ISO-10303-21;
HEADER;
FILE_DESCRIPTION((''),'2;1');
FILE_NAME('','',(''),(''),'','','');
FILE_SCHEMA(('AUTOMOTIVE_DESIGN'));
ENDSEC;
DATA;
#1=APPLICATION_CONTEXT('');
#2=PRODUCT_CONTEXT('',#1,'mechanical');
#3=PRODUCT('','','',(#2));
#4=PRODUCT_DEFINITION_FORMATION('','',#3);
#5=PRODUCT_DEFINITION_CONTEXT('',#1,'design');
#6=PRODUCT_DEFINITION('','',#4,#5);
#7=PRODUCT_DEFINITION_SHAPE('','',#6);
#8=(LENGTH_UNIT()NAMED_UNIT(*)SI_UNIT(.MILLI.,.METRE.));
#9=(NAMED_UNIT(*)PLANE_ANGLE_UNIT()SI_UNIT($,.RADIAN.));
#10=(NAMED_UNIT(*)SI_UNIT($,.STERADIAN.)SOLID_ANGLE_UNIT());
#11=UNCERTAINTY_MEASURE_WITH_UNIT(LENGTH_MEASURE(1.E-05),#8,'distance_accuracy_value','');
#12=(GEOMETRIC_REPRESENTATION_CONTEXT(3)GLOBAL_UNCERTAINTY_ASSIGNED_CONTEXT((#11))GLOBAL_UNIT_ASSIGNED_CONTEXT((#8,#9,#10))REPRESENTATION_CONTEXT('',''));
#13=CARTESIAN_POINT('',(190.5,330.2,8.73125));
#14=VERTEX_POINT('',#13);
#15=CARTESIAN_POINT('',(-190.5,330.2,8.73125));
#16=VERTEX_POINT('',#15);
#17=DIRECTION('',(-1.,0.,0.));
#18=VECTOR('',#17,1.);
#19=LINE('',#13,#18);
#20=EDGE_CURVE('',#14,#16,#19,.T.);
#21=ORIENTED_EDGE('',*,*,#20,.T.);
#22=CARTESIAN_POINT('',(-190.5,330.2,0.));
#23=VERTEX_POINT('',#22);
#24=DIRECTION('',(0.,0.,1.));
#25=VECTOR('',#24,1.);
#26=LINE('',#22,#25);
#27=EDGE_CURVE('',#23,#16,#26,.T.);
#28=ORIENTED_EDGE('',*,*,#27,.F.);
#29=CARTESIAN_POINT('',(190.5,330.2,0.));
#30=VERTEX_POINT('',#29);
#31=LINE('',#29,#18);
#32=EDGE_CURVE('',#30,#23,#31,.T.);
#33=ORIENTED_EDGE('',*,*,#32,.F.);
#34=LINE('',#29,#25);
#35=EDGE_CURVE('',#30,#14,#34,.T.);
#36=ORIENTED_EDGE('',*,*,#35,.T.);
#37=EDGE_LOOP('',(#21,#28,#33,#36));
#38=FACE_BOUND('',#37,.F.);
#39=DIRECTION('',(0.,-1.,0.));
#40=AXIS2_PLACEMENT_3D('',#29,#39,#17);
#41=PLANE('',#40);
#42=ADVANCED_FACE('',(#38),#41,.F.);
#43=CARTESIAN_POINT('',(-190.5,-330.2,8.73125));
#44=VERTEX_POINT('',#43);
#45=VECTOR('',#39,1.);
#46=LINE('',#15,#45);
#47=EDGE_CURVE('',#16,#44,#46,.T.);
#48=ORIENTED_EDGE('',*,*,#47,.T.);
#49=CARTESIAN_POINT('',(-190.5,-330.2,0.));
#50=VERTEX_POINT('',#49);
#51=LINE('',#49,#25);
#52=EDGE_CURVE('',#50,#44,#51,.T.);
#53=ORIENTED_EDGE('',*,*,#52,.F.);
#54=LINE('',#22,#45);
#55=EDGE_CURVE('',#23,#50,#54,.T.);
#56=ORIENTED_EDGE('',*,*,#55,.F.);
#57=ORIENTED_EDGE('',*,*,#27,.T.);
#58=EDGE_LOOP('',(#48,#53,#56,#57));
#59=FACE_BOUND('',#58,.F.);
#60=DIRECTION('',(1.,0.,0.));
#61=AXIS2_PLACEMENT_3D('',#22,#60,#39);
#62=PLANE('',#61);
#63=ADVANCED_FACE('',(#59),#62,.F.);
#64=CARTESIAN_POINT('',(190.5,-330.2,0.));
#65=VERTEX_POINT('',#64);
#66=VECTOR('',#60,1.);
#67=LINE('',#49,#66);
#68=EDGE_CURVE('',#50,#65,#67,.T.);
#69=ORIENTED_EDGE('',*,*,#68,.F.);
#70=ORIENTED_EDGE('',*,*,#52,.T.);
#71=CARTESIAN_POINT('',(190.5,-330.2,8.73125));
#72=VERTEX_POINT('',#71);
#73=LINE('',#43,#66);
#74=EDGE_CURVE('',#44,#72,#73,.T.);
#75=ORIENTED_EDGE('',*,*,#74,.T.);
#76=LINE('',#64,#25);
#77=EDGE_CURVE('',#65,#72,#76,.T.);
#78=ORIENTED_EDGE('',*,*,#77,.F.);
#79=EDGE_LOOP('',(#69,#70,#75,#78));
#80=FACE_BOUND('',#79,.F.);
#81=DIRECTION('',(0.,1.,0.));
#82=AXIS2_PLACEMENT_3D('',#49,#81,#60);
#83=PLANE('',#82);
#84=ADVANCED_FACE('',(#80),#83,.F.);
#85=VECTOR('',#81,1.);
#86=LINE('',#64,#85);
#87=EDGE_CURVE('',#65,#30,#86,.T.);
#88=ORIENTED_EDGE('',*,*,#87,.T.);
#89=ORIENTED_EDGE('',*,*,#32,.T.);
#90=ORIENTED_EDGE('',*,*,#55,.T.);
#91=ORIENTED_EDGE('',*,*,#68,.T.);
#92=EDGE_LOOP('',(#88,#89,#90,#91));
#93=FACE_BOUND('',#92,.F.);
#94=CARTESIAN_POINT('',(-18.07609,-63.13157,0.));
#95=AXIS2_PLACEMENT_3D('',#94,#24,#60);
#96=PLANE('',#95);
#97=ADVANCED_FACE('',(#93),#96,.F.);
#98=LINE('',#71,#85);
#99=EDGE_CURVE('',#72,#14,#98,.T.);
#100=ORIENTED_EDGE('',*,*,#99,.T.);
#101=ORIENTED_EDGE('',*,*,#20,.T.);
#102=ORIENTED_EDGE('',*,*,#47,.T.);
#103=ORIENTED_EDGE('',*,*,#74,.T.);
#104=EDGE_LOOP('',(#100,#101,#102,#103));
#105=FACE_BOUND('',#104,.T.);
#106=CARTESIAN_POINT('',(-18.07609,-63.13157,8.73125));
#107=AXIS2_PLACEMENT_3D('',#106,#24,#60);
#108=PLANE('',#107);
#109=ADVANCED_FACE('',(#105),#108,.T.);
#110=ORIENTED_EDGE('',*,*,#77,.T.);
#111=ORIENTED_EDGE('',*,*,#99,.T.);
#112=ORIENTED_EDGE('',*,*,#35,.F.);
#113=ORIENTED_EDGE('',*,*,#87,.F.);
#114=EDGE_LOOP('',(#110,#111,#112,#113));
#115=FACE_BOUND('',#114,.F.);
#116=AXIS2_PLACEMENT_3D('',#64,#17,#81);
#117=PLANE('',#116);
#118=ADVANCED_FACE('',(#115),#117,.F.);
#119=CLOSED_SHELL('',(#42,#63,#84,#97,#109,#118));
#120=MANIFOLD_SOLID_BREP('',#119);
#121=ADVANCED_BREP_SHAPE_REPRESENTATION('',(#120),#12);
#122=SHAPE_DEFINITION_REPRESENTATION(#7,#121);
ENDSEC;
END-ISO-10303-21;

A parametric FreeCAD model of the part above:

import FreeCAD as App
import Part
import Sketcher
Q = App.Units.Quantity

doc = App.newDocument("Part")
params = doc.addObject("Spreadsheet::Sheet", "Params")
for row, (alias, value) in enumerate([
    ("sketch1_width", "15 in"),
    ("sketch1_height", "26 in"),
    ("pad1_length", "0.34375 in"),
], start=1):
    params.set(f"A{row}", alias)
    params.set(f"B{row}", "=" + value)
    params.setAlias(f"B{row}", alias)

body = doc.addObject("PartDesign::Body", "Body")

# Sketch on XY plane
sketch1 = doc.addObject("Sketcher::SketchObject", "Sketch")
body.addObject(sketch1)
sketch1.AttachmentSupport = (doc.XY_Plane, [""])
sketch1.MapMode = "FlatFace"
sketch1.addGeometry(Part.LineSegment(App.Vector(-190.5, -330.2, 0), App.Vector(190.5, -330.2, 0)), False)
sketch1.addGeometry(Part.LineSegment(App.Vector(190.5, -330.2, 0), App.Vector(190.5, 330.2, 0)), False)
sketch1.addGeometry(Part.LineSegment(App.Vector(190.5, 330.2, 0), App.Vector(-190.5, 330.2, 0)), False)
sketch1.addGeometry(Part.LineSegment(App.Vector(-190.5, 330.2, 0), App.Vector(-190.5, -330.2, 0)), False)
sketch1.addConstraint(Sketcher.Constraint("Coincident", 0, 2, 1, 1))
sketch1.addConstraint(Sketcher.Constraint("Coincident", 1, 2, 2, 1))
sketch1.addConstraint(Sketcher.Constraint("Coincident", 2, 2, 3, 1))
sketch1.addConstraint(Sketcher.Constraint("Coincident", 3, 2, 0, 1))
sketch1.addConstraint(Sketcher.Constraint("Horizontal", 0))
sketch1.addConstraint(Sketcher.Constraint("Vertical", 1))
sketch1.addConstraint(Sketcher.Constraint("Horizontal", 2))
sketch1.addConstraint(Sketcher.Constraint("Vertical", 3))
sketch1.addConstraint(Sketcher.Constraint("Symmetric", 0, 2, 2, 2, -1, 1))
sketch1.addConstraint(Sketcher.Constraint("DistanceX", 0, 1, 0, 2, Q("15 in")))
sketch1.addConstraint(Sketcher.Constraint("DistanceY", 1, 1, 1, 2, Q("26 in")))
sketch1.setExpression("Constraints[9]", "Params.sketch1_width")
sketch1.setExpression("Constraints[10]", "Params.sketch1_height")
pad1 = doc.addObject("PartDesign::Pad", "Pad")
body.addObject(pad1)
pad1.Profile = sketch1
pad1.setExpression("Length", "Params.pad1_length")

doc.recompute()
